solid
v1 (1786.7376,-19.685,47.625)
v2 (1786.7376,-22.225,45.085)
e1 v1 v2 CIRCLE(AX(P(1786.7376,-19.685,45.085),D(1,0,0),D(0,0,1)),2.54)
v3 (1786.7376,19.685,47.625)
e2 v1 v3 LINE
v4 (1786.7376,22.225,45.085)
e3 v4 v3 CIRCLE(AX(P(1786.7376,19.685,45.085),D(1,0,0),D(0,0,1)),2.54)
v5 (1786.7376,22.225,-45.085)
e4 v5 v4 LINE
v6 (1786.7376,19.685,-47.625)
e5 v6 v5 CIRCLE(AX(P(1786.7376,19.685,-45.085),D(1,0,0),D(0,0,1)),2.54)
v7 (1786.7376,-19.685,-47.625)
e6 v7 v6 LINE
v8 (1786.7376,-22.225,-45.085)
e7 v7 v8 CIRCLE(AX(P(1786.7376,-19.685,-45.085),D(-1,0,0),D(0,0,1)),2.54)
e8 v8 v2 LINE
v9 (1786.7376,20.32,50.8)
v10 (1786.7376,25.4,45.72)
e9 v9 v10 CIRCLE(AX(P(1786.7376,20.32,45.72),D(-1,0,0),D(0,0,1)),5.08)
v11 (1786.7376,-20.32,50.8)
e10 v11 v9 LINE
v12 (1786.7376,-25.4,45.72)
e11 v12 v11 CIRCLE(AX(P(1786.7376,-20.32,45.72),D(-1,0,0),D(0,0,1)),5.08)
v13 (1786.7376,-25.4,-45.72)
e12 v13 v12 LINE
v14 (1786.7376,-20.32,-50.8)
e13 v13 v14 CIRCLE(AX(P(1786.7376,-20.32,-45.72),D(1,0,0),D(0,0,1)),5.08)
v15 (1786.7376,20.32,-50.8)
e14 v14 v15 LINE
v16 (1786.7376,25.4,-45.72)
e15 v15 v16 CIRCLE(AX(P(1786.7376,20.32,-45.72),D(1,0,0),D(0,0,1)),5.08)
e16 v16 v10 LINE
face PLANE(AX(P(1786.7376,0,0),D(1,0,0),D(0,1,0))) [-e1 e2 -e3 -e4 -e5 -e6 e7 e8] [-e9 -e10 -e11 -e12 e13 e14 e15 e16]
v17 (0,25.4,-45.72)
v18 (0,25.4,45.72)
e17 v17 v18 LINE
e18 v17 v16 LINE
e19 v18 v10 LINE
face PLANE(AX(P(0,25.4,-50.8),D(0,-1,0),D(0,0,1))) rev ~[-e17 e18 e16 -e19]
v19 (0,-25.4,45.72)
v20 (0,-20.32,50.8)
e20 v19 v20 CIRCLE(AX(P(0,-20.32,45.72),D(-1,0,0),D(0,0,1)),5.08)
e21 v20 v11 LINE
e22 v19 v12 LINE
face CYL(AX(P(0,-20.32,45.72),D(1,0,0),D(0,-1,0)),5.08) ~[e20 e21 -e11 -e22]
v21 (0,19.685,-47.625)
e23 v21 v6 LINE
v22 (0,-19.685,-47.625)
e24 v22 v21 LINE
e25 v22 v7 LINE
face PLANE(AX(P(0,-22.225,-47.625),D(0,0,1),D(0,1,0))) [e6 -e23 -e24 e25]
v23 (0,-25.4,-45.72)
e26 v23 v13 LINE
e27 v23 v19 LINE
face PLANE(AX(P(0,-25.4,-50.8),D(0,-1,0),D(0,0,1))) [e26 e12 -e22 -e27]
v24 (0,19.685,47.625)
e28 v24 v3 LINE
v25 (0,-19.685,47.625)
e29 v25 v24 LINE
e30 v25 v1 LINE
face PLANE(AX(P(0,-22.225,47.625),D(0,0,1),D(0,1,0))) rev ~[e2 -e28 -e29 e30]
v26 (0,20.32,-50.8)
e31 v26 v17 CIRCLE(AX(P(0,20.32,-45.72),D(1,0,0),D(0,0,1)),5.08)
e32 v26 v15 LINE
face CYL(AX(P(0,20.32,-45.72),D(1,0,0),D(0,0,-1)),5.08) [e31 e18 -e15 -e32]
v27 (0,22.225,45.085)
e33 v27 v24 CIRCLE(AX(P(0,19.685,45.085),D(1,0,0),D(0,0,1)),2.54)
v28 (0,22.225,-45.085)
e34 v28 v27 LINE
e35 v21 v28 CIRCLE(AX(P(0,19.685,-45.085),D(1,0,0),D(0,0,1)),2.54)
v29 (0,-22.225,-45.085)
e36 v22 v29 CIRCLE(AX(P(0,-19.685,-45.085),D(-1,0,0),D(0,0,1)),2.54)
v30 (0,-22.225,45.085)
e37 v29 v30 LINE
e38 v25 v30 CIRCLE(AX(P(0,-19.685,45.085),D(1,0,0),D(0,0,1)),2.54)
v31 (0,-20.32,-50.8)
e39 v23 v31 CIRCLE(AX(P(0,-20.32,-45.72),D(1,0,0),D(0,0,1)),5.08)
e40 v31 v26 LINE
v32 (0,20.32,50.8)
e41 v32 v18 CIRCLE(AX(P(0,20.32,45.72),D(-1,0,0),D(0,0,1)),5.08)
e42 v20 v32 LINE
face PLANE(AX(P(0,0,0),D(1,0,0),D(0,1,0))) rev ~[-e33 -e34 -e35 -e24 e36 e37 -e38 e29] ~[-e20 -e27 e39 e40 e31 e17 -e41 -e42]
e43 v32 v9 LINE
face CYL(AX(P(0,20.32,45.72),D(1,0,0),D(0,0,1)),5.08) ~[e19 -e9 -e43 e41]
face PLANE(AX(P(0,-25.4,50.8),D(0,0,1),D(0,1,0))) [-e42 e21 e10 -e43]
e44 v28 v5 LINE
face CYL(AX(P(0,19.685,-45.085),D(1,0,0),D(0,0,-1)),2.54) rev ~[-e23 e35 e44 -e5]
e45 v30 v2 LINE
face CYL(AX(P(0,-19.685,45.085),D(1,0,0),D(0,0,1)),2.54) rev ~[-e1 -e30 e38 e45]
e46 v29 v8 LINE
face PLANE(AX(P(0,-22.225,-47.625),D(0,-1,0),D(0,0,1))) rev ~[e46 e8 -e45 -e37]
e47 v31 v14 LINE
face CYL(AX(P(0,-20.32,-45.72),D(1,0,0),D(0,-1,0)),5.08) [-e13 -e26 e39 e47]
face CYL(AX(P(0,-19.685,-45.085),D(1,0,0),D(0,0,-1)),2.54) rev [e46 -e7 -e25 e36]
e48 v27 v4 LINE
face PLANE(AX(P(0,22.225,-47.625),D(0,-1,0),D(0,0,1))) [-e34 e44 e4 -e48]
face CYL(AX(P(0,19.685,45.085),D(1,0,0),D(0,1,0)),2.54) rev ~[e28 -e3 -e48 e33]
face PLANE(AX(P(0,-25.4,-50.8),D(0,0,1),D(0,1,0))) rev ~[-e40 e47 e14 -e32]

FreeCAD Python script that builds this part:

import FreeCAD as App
import Part
import Sketcher

V = App.Vector
Q = App.Units.Quantity


def edges_at(feature, points):
    """Names of the edges that pass closest to the given points."""
    edges = feature.Shape.Edges
    near = lambda p: min(range(len(edges)), key=lambda i: edges[i].distToShape(Part.Vertex(*p))[0])
    return sorted({f"Edge{near(p) + 1}" for p in points})


def add_polygon(sketch, points):
    """Adds a closed chain of lines whose ends are joined by coincident constraints."""
    first, n = sketch.GeometryCount, len(points)
    for a, b in zip(points, points[1:] + points[:1]):
        sketch.addGeometry(Part.LineSegment(App.Vector(*a, 0), App.Vector(*b, 0)), False)
    for i in range(n):
        sketch.addConstraint(Sketcher.Constraint("Coincident", first + i, 2, first + (i + 1) % n, 1))

doc = App.newDocument("Part")
params = doc.addObject("Spreadsheet::Sheet", "Params")
for row, (alias, value) in enumerate([
    ("sketch1_width", "2 in"),
    ("sketch1_height", "4 in"),
    ("sketch1_width2", "1.75 in"),
    ("sketch1_height2", "3.75 in"),
    ("pad1_length", "70.344 in"),
    ("fillet_radius", "0.1 in"),
    ("fillet2_radius", "0.2 in"),
], start=1):
    params.set(f"A{row}", alias)
    params.set(f"B{row}", "=" + value)
    params.setAlias(f"B{row}", alias)

body = doc.addObject("PartDesign::Body", "Body")

# Sketch on YZ plane
sketch1 = body.newObject("Sketcher::SketchObject", "Sketch")
sketch1.AttachmentSupport = (doc.getObject("YZ_Plane"), [""])
sketch1.MapMode = "FlatFace"
add_polygon(sketch1, [(-25, 51), (-25, -51), (25, -51), (25, 51)])  # lines 0-3
add_polygon(sketch1, [(22, -48), (-22, -48), (-22, 48), (22, 48)])  # lines 4-7
sketch1.addConstraint([
    Sketcher.Constraint("Vertical", 0),
    Sketcher.Constraint("Horizontal", 1),
    Sketcher.Constraint("Vertical", 2),
    Sketcher.Constraint("Horizontal", 3),
    Sketcher.Constraint("Horizontal", 4),
    Sketcher.Constraint("Vertical", 5),
    Sketcher.Constraint("Horizontal", 6),
    Sketcher.Constraint("Vertical", 7),
    Sketcher.Constraint("Symmetric", 0, 2, 2, 2, -1, 1),
    Sketcher.Constraint("Symmetric", 4, 2, 6, 2, -1, 1),
    Sketcher.Constraint("DistanceX", 1, 1, 1, 2, Q("2 in")),
    Sketcher.Constraint("DistanceY", 0, 2, 0, 1, Q("4 in")),
    Sketcher.Constraint("DistanceX", 4, 2, 4, 1, Q("1.75 in")),
    Sketcher.Constraint("DistanceY", 5, 1, 5, 2, Q("3.75 in")),
])
sketch1.setExpression("Constraints[18]", "Params.sketch1_width")
sketch1.setExpression("Constraints[19]", "Params.sketch1_height")
sketch1.setExpression("Constraints[20]", "Params.sketch1_width2")
sketch1.setExpression("Constraints[21]", "Params.sketch1_height2")
pad1 = body.newObject("PartDesign::Pad", "Pad")
pad1.Profile = sketch1
pad1.setExpression("Length", "Params.pad1_length")
doc.recompute()

fillet = body.newObject("PartDesign::Fillet", "Fillet")
fillet.Base = (pad1, edges_at(pad1, [
    (893.369, 22.225, 47.625),
    (893.369, -22.225, 47.625),
    (893.369, -22.225, -47.625),
    (893.369, 22.225, -47.625),
]))
fillet.setExpression("Radius", "Params.fillet_radius")
doc.recompute()

fillet2 = body.newObject("PartDesign::Fillet", "Fillet001")
fillet2.Base = (fillet, edges_at(fillet, [
    (893.369, -25.4, -50.8),
    (893.369, -25.4, 50.8),
    (893.369, 25.4, 50.8),
    (893.369, 25.4, -50.8),
]))
fillet2.setExpression("Radius", "Params.fillet2_radius")

doc.recompute()
